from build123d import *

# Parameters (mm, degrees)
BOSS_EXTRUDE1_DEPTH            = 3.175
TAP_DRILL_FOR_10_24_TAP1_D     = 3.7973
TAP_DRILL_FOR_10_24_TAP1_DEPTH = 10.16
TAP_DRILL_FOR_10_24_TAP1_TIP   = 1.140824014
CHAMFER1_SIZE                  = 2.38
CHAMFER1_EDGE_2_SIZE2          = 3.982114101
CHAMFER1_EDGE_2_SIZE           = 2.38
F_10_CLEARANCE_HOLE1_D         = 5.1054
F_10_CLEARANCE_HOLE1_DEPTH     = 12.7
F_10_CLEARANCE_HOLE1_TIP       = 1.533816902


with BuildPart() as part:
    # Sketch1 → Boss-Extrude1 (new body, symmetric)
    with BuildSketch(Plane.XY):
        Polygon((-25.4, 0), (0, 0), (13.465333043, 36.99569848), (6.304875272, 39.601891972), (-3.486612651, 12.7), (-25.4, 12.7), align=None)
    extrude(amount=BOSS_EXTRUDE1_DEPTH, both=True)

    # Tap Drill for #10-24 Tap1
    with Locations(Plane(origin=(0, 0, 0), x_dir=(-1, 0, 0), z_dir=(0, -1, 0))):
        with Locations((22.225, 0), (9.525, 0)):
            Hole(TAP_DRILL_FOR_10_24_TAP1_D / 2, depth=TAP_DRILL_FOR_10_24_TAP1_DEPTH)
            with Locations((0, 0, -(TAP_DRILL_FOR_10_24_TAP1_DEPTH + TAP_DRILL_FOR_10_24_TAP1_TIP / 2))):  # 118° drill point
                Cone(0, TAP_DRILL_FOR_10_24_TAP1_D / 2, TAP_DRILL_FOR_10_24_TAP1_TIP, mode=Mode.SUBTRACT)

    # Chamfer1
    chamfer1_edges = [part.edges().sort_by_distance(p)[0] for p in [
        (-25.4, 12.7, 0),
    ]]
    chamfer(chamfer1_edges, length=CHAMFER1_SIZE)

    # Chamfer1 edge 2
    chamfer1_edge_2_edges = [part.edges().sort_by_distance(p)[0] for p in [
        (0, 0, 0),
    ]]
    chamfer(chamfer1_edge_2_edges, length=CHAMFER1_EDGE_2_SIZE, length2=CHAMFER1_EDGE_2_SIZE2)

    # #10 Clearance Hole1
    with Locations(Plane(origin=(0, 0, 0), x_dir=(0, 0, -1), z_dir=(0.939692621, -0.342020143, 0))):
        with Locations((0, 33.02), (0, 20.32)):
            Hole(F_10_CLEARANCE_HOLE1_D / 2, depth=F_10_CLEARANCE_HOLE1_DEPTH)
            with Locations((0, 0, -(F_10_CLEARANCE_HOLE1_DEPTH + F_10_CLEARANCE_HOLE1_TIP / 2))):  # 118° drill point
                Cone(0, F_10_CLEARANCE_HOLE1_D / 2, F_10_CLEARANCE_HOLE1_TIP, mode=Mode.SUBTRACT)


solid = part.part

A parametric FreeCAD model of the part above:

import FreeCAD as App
import Part
import Sketcher
Q = App.Units.Quantity


def edges_at(feature, points):
    """Names of the edges that pass closest to the given points."""
    edges = feature.Shape.Edges
    near = lambda p: min(range(len(edges)), key=lambda i: edges[i].distToShape(Part.Vertex(*p))[0])
    return sorted({f"Edge{near(p) + 1}" for p in points})


def add_polygon(sketch, points):
    """Adds a closed chain of lines whose ends are joined by coincident constraints."""
    first, n = sketch.GeometryCount, len(points)
    for a, b in zip(points, points[1:] + points[:1]):
        sketch.addGeometry(Part.LineSegment(App.Vector(*a, 0), App.Vector(*b, 0)), False)
    for i in range(n):
        sketch.addConstraint(Sketcher.Constraint("Coincident", first + i, 2, first + (i + 1) % n, 1))

doc = App.newDocument("Part")
body = doc.addObject("PartDesign::Body", "Body")

# Sketch on XY plane
sketch1 = body.newObject("Sketcher::SketchObject", "Sketch")
sketch1.AttachmentSupport = (doc.getObject("XY_Plane"), [""])
sketch1.MapMode = "FlatFace"
add_polygon(sketch1, [(-25, 0), (0, 0), (13, 37), (6, 40), (-3, 13), (-25, 13)])  # lines 0-5
sketch1.addConstraint([
    Sketcher.Constraint("Horizontal", 0),
    Sketcher.Constraint("Horizontal", 4),
    Sketcher.Constraint("Vertical", 5),
    Sketcher.Constraint("Coincident", 0, 2, -1, 1),
    Sketcher.Constraint("Perpendicular", 1, 2),
    Sketcher.Constraint("Perpendicular", 2, 3),
    Sketcher.Constraint("DistanceX", 0, 1, 0, 2, Q("1 in")),
    Sketcher.Constraint("DistanceY", 5, 2, 5, 1, Q("0.5 in")),
    Sketcher.Constraint("Angle", 1, Q("70 deg")),
    Sketcher.Constraint("Distance", 2, Q("0.3 in")),
    Sketcher.Constraint("Distance", 1, Q("1.55 in")),
])
pad1 = body.newObject("PartDesign::Pad", "Pad")
pad1.Profile = sketch1
pad1.Length = Q("0.25 in")
pad1.Midplane = True

# Sketch on XZ plane
sketch2 = body.newObject("Sketcher::SketchObject", "Sketch001")
sketch2.AttachmentSupport = (doc.getObject("XZ_Plane"), [""])
sketch2.MapMode = "FlatFace"
sketch2.addGeometry([
    Part.Circle(App.Vector(-22.2, 0, 0), App.Vector(0, 0, 1), 1.9),
    Part.Circle(App.Vector(-9.5, 0, 0), App.Vector(0, 0, 1), 1.9),
], False)
sketch2.addConstraint([
    Sketcher.Constraint("Equal", 0, 1),
    Sketcher.Constraint("PointOnObject", 0, 3, -1),
    Sketcher.Constraint("PointOnObject", 1, 3, -1),
    Sketcher.Constraint("Diameter", 0, Q("0.1495 in")),
    Sketcher.Constraint("DistanceX", 0, 3, 1, 3, Q("0.5 in")),
    Sketcher.Constraint("DistanceX", 0, 3, -1, 1, Q("0.875 in")),
])
doc.recompute()
hole = body.newObject("PartDesign::Hole", "Hole")
hole.Profile = sketch2
hole.ThreadType = "None"
hole.Diameter = Q("0.1495 in")
hole.DepthType = "Dimension"
hole.Depth = Q("0.4 in")
hole.DrillPoint = "Angled"
hole.DrillPointAngle = 118
doc.recompute()

chamfer = body.newObject("PartDesign::Chamfer", "Chamfer")
chamfer.Base = (hole, edges_at(hole, [(-25.4, 12.7, 0)]))
chamfer.Size = 2.38
doc.recompute()

chamfer2 = body.newObject("PartDesign::Chamfer", "Chamfer001")
chamfer2.Base = (chamfer, edges_at(chamfer, [(0, 0, 0)]))
chamfer2.ChamferType = "Two distances"
chamfer2.Size = 2.38
chamfer2.Size2 = 3.982114

# Sketch on an angled plane
sketch3 = body.newObject("Sketcher::SketchObject", "Sketch002")
sketch3.Placement = App.Placement(App.Vector(0, 0, 0), App.Rotation(App.Vector(0, 0, -1), App.Vector(0.342020143, 0.939692621, 0), App.Vector(0.939692621, -0.342020143, 0), "ZXY"))
sketch3.addGeometry([
    Part.Circle(App.Vector(0, 33, 0), App.Vector(0, 0, 1), 2.6),
    Part.Circle(App.Vector(0, 20.3, 0), App.Vector(0, 0, 1), 2.6),
], False)
sketch3.addConstraint([
    Sketcher.Constraint("Equal", 0, 1),
    Sketcher.Constraint("PointOnObject", 0, 3, -2),
    Sketcher.Constraint("PointOnObject", 1, 3, -2),
    Sketcher.Constraint("Diameter", 0, Q("0.201 in")),
    Sketcher.Constraint("DistanceY", -1, 1, 0, 3, Q("1.3 in")),
    Sketcher.Constraint("DistanceY", -1, 1, 1, 3, Q("0.8 in")),
])
doc.recompute()
hole2 = body.newObject("PartDesign::Hole", "Hole001")
hole2.Profile = sketch3
hole2.ThreadType = "None"
hole2.Diameter = Q("0.201 in")
hole2.DepthType = "Dimension"
hole2.Depth = Q("0.5 in")
hole2.DrillPoint = "Angled"
hole2.DrillPointAngle = 118

doc.recompute()
